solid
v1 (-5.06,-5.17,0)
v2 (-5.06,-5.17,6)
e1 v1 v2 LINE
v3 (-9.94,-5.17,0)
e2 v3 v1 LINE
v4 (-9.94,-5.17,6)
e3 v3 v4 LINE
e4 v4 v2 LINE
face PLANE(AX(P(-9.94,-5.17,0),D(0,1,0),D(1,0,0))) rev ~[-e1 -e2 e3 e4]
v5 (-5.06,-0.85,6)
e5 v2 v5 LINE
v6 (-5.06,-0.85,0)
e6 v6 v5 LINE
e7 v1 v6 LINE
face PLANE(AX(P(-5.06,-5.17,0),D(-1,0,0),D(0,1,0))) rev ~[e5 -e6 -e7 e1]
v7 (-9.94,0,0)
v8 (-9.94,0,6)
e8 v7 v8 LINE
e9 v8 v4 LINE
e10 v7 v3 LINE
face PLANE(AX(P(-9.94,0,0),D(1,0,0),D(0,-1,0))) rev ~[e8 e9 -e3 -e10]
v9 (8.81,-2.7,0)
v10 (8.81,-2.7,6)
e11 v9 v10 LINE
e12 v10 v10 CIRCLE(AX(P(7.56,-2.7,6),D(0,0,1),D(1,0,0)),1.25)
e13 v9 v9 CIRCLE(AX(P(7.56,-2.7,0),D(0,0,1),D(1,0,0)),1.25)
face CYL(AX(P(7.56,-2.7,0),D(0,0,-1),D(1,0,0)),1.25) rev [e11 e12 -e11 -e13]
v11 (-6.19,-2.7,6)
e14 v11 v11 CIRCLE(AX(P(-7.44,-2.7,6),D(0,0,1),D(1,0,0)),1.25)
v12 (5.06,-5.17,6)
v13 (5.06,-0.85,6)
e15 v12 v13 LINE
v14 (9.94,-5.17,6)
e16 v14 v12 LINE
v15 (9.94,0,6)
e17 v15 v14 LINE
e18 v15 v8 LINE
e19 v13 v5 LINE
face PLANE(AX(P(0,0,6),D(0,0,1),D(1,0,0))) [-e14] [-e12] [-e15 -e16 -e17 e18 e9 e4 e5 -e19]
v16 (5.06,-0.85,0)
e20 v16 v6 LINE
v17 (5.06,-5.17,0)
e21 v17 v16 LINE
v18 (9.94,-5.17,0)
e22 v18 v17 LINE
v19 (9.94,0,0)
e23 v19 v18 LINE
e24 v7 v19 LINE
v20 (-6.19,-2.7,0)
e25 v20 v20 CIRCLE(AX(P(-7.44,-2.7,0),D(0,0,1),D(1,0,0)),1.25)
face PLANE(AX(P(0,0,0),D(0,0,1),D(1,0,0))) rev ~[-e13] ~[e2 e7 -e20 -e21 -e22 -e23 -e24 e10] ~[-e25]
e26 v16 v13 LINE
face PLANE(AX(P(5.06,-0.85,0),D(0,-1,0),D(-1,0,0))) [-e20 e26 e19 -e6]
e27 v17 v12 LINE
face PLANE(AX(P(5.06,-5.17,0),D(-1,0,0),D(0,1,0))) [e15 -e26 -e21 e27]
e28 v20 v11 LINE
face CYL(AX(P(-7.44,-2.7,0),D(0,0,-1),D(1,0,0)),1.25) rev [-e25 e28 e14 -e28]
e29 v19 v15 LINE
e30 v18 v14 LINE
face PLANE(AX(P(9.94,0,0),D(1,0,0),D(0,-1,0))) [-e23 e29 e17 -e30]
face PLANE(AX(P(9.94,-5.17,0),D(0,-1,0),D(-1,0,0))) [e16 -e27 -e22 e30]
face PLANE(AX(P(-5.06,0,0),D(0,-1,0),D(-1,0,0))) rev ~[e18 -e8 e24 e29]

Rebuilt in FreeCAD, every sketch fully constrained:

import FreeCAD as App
import Part
import Sketcher
from FreeCAD import Vector

doc = App.newDocument("Part")
body = doc.addObject("PartDesign::Body", "Body")

sketch1 = body.newObject("Sketcher::SketchObject", "Sketch")
sketch1.AttachmentSupport = (doc.getObject("XY_Plane"), [""])
sketch1.MapMode = "FlatFace"
sketch1.addGeometry(Part.LineSegment(Vector(-5.1, -5.2, 0), Vector(-5.1, -0.8, 0)), False)
sketch1.addGeometry(Part.LineSegment(Vector(-5.1, -0.8, 0), Vector(5.1, -0.8, 0)), False)
sketch1.addGeometry(Part.LineSegment(Vector(5.1, -0.8, 0), Vector(5.1, -5.2, 0)), False)
sketch1.addGeometry(Part.LineSegment(Vector(5.1, -5.2, 0), Vector(9.9, -5.2, 0)), False)
sketch1.addGeometry(Part.LineSegment(Vector(9.9, -5.2, 0), Vector(9.9, 0, 0)), False)
sketch1.addGeometry(Part.LineSegment(Vector(9.9, 0, 0), Vector(-9.9, 0, 0)), False)
sketch1.addGeometry(Part.LineSegment(Vector(-9.9, 0, 0), Vector(-9.9, -5.2, 0)), False)
sketch1.addGeometry(Part.LineSegment(Vector(-9.9, -5.2, 0), Vector(-5.1, -5.2, 0)), False)
sketch1.addGeometry(Part.Circle(Vector(-7.4, -2.7, 0), Vector(0, 0, 1), 1.2), False)
sketch1.addGeometry(Part.Circle(Vector(7.6, -2.7, 0), Vector(0, 0, 1), 1.2), False)
sketch1.addConstraint(Sketcher.Constraint("Coincident", 0, 2, 1, 1))
sketch1.addConstraint(Sketcher.Constraint("Coincident", 1, 2, 2, 1))
sketch1.addConstraint(Sketcher.Constraint("Coincident", 2, 2, 3, 1))
sketch1.addConstraint(Sketcher.Constraint("Coincident", 3, 2, 4, 1))
sketch1.addConstraint(Sketcher.Constraint("Coincident", 4, 2, 5, 1))
sketch1.addConstraint(Sketcher.Constraint("Coincident", 5, 2, 6, 1))
sketch1.addConstraint(Sketcher.Constraint("Coincident", 6, 2, 7, 1))
sketch1.addConstraint(Sketcher.Constraint("Coincident", 7, 2, 0, 1))
sketch1.addConstraint(Sketcher.Constraint("Vertical", 0))
sketch1.addConstraint(Sketcher.Constraint("Horizontal", 1))
sketch1.addConstraint(Sketcher.Constraint("Vertical", 2))
sketch1.addConstraint(Sketcher.Constraint("Horizontal", 3))
sketch1.addConstraint(Sketcher.Constraint("Vertical", 4))
sketch1.addConstraint(Sketcher.Constraint("Horizontal", 5))
sketch1.addConstraint(Sketcher.Constraint("Vertical", 6))
sketch1.addConstraint(Sketcher.Constraint("Horizontal", 7))
sketch1.addConstraint(Sketcher.Constraint("Equal", 8, 9))
sketch1.addConstraint(Sketcher.Constraint("Symmetric", 4, 2, 5, 2, -1, 1))
sketch1.addConstraint(Sketcher.Constraint("Symmetric", 2, 2, 7, 2, -2))
sketch1.addConstraint(Sketcher.Constraint("Horizontal", 8, 3, 9, 3))
sketch1.addConstraint(Sketcher.Constraint("Diameter", 8, 2.5))
sketch1.addConstraint(Sketcher.Constraint("DistanceX", 8, 3, 9, 3, 15.0))
sketch1.addConstraint(Sketcher.Constraint("DistanceX", 0, 2, 3, 2, 15.0))
sketch1.addConstraint(Sketcher.Constraint("DistanceX", 3, 1, 3, 2, 4.88))
sketch1.addConstraint(Sketcher.Constraint("DistanceY", 4, 1, 4, 2, 5.17))
sketch1.addConstraint(Sketcher.Constraint("DistanceY", 8, 3, -1, 1, 2.7))
sketch1.addConstraint(Sketcher.Constraint("DistanceX", 1, 2, 9, 3, 2.5))
sketch1.addConstraint(Sketcher.Constraint("DistanceY", 0, 2, -1, 1, 0.85))
pad1 = body.newObject("PartDesign::Pad", "Pad")
pad1.Profile = sketch1
pad1.Length = 6

doc.recompute()
